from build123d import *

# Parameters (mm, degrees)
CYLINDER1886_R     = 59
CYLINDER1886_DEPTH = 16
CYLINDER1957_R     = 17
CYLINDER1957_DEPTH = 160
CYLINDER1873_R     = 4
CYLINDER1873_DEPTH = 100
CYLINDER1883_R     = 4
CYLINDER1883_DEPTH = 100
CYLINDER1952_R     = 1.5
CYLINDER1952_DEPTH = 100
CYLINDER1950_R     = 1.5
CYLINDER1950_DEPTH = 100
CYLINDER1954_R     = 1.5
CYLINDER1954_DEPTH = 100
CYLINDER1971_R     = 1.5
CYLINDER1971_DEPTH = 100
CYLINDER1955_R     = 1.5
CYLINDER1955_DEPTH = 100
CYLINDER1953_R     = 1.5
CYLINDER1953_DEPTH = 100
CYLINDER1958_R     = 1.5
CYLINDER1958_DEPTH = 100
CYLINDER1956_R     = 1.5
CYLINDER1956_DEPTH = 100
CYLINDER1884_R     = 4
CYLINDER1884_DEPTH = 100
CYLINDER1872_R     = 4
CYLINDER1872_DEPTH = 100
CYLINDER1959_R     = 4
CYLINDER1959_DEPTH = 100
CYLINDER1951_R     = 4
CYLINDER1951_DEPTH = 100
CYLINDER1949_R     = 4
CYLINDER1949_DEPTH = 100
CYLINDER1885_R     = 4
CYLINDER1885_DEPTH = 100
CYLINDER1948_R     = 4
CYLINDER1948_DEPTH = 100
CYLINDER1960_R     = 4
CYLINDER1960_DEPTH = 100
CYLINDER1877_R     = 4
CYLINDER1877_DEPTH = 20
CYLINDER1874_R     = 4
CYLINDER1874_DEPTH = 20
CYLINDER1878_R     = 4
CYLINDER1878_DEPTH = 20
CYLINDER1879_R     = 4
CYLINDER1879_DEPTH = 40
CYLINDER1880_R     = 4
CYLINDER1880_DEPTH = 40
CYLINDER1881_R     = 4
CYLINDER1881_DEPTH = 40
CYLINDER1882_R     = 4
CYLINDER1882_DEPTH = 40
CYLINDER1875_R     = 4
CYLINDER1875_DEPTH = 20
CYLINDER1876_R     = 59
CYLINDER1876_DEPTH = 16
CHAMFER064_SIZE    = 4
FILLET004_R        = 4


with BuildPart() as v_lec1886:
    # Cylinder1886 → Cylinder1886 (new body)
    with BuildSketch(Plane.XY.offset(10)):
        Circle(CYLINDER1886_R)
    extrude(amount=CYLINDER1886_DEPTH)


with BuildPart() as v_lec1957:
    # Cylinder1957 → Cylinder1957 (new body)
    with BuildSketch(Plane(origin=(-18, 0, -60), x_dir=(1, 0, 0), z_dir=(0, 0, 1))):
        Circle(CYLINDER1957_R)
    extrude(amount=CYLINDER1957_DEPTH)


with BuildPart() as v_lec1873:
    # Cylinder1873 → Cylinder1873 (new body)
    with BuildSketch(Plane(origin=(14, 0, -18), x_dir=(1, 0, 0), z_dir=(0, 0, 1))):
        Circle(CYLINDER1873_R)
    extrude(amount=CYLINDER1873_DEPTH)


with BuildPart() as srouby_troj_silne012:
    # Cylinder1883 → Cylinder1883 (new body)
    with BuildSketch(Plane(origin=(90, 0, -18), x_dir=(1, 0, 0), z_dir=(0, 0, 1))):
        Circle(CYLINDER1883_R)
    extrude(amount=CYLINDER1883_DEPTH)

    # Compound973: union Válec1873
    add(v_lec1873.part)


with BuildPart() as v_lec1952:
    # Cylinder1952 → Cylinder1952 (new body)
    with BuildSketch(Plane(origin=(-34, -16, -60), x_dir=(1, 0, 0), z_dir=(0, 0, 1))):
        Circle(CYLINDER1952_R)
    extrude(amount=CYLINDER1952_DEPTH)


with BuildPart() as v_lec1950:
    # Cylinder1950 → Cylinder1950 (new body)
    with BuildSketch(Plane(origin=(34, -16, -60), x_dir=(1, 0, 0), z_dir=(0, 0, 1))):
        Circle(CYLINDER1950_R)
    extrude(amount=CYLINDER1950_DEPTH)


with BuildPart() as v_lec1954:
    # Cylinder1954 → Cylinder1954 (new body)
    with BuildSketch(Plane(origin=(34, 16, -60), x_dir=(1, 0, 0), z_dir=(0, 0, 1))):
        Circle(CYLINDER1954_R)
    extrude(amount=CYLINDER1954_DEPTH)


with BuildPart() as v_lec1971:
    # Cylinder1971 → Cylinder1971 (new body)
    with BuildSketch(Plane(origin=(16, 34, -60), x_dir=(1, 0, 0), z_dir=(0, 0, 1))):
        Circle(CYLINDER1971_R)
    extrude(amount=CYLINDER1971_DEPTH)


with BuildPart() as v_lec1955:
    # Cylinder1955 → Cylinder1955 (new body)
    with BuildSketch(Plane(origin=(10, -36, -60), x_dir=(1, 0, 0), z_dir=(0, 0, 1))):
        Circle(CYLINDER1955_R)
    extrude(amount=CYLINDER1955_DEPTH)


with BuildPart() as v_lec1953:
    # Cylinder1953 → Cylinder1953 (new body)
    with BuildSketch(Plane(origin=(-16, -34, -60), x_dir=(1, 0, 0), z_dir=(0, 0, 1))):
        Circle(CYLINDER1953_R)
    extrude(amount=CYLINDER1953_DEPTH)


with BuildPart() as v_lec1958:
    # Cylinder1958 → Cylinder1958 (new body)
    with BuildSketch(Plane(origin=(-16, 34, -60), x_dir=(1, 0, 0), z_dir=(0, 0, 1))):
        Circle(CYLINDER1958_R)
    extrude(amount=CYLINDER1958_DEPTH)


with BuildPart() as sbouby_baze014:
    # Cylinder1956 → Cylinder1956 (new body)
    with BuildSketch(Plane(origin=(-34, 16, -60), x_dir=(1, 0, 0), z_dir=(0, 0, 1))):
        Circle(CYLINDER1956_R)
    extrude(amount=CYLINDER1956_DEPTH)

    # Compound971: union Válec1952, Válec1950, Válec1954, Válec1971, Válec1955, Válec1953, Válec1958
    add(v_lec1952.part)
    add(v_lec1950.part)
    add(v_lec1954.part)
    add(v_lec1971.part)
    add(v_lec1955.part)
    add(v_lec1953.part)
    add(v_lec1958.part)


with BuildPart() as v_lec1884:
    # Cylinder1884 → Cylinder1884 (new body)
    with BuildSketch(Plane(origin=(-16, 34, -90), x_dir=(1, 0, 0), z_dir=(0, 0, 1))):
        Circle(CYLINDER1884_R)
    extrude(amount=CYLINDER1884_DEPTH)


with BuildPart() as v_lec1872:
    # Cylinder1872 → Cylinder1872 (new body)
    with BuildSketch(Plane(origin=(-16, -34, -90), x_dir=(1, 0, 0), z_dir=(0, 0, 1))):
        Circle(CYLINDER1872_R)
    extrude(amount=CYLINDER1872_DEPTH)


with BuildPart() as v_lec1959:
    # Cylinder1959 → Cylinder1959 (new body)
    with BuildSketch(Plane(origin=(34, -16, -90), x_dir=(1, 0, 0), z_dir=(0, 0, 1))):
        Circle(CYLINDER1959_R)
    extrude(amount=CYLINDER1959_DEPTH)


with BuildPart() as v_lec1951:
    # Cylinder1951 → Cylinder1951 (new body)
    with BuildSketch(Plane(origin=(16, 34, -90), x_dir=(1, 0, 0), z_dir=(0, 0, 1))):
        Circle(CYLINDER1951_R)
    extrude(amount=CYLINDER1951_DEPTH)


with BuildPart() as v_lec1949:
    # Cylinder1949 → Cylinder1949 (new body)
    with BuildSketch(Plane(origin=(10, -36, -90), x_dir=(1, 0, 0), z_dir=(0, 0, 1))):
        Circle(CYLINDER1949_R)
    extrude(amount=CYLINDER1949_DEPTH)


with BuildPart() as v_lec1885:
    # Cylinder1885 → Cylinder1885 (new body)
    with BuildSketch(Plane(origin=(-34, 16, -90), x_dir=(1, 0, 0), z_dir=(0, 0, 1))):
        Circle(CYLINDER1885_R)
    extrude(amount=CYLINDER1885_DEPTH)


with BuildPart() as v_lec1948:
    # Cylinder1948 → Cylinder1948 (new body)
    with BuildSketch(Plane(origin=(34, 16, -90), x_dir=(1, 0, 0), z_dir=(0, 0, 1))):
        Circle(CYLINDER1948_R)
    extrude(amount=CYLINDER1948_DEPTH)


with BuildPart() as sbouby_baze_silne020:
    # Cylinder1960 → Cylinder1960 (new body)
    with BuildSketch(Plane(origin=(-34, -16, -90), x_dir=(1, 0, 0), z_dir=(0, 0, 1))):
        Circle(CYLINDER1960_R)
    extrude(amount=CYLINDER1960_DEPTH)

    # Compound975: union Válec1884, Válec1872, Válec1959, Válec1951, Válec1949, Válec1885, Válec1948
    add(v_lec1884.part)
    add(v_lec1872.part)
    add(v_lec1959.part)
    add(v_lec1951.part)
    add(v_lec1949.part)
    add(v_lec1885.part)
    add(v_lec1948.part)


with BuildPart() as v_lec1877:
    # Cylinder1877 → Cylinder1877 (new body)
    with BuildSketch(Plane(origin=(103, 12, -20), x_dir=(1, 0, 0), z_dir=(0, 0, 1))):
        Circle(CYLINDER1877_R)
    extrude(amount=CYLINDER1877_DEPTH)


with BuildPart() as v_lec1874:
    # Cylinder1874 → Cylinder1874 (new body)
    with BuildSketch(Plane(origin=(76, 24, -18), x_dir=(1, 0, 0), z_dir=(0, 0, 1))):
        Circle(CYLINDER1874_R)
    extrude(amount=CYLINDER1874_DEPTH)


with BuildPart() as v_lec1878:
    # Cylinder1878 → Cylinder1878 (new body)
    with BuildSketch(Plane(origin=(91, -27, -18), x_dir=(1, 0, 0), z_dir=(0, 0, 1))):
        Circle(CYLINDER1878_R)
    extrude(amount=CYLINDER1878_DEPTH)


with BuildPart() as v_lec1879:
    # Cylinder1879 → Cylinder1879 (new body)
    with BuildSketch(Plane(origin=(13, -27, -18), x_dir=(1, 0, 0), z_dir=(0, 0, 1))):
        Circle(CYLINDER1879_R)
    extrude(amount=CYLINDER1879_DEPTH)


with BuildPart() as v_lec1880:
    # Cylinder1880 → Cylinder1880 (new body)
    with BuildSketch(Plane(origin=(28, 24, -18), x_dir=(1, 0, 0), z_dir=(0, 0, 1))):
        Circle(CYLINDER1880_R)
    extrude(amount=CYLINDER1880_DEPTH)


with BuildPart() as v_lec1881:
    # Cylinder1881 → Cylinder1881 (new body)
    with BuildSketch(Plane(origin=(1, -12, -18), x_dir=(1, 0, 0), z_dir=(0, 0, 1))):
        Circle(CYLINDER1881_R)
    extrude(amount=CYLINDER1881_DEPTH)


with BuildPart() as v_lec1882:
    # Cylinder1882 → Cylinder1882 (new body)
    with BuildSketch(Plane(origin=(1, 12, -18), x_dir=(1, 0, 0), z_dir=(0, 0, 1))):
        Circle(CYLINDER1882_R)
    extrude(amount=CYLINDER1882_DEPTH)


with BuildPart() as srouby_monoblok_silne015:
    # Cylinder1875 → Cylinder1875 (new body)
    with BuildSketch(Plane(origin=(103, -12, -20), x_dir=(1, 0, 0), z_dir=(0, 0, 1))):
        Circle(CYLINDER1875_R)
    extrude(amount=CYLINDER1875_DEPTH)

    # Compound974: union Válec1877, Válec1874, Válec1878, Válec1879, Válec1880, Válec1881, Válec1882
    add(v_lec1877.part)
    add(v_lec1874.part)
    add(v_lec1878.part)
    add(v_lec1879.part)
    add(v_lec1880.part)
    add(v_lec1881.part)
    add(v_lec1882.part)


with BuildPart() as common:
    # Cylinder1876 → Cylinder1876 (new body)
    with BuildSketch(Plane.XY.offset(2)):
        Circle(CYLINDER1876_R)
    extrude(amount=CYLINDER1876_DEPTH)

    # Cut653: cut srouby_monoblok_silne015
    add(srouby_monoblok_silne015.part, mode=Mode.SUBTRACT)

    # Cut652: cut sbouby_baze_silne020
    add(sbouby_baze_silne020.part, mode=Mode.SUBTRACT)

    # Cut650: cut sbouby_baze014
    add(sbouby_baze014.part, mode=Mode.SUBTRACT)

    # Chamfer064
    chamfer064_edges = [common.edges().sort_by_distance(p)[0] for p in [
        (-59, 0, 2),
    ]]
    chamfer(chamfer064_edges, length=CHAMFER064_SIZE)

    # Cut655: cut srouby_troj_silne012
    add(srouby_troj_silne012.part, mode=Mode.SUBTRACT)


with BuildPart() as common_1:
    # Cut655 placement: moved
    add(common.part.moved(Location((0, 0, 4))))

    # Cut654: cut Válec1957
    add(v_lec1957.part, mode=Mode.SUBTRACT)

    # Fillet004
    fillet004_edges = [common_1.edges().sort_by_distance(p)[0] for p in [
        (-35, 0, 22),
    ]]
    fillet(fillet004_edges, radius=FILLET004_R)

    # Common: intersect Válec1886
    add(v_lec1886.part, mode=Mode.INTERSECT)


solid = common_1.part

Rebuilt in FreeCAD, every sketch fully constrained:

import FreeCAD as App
import Part
import Sketcher
Q = App.Units.Quantity


def edges_at(feature, points):
    """Names of the edges that pass closest to the given points."""
    edges = feature.Shape.Edges
    near = lambda p: min(range(len(edges)), key=lambda i: edges[i].distToShape(Part.Vertex(*p))[0])
    return sorted({f"Edge{near(p) + 1}" for p in points})

doc = App.newDocument("Part")
body = doc.addObject("PartDesign::Body", "Body")

sketch1 = body.newObject("Sketcher::SketchObject", "Sketch")
sketch1.AttachmentSupport = (doc.getObject("XY_Plane"), [""])
sketch1.MapMode = "FlatFace"
sketch1.AttachmentOffset = App.Placement(App.Vector(0, 0, 10), App.Rotation())
sketch1.addGeometry(Part.Circle(App.Vector(0, 0, 0), App.Vector(0, 0, 1), 59), False)
sketch1.addConstraint([
    Sketcher.Constraint("Coincident", 0, 3, -1, 1),
    Sketcher.Constraint("Diameter", 0, Q("118 mm")),
])
pad1 = body.newObject("PartDesign::Pad", "Pad")
pad1.Profile = sketch1
pad1.Length = 16
body2 = doc.addObject("PartDesign::Body", "Body001")

sketch2 = body2.newObject("Sketcher::SketchObject", "Sketch001")
sketch2.AttachmentSupport = (doc.getObject("XY_Plane001"), [""])
sketch2.MapMode = "FlatFace"
sketch2.AttachmentOffset = App.Placement(App.Vector(0, 0, -60), App.Rotation())
sketch2.addGeometry(Part.Circle(App.Vector(-18, 0, 0), App.Vector(0, 0, 1), 17), False)
sketch2.addConstraint([
    Sketcher.Constraint("PointOnObject", 0, 3, -1),
    Sketcher.Constraint("Diameter", 0, Q("34 mm")),
    Sketcher.Constraint("DistanceX", 0, 3, -1, 1, Q("18 mm")),
])
pad2 = body2.newObject("PartDesign::Pad", "Pad001")
pad2.Profile = sketch2
pad2.Length = 160
body3 = doc.addObject("PartDesign::Body", "Body002")

sketch3 = body3.newObject("Sketcher::SketchObject", "Sketch002")
sketch3.AttachmentSupport = (doc.getObject("XY_Plane002"), [""])
sketch3.MapMode = "FlatFace"
sketch3.AttachmentOffset = App.Placement(App.Vector(0, 0, -18), App.Rotation())
sketch3.addGeometry(Part.Circle(App.Vector(14, 0, 0), App.Vector(0, 0, 1), 4), False)
sketch3.addConstraint([
    Sketcher.Constraint("PointOnObject", 0, 3, -1),
    Sketcher.Constraint("Diameter", 0, Q("8 mm")),
    Sketcher.Constraint("DistanceX", -1, 1, 0, 3, Q("14 mm")),
])
pad3 = body3.newObject("PartDesign::Pad", "Pad002")
pad3.Profile = sketch3
pad3.Length = 100
body4 = doc.addObject("PartDesign::Body", "Body003")
body4.AllowCompound = True

sketch4 = body4.newObject("Sketcher::SketchObject", "Sketch003")
sketch4.AttachmentSupport = (doc.getObject("XY_Plane003"), [""])
sketch4.MapMode = "FlatFace"
sketch4.AttachmentOffset = App.Placement(App.Vector(0, 0, -18), App.Rotation())
sketch4.addGeometry(Part.Circle(App.Vector(90, 0, 0), App.Vector(0, 0, 1), 4), False)
sketch4.addConstraint([
    Sketcher.Constraint("PointOnObject", 0, 3, -1),
    Sketcher.Constraint("Diameter", 0, Q("8 mm")),
    Sketcher.Constraint("DistanceX", -1, 1, 0, 3, Q("90 mm")),
])
pad4 = body4.newObject("PartDesign::Pad", "Pad003")
pad4.Profile = sketch4
pad4.Length = 100
doc.recompute()

boolean = body4.newObject("PartDesign::Boolean", "Boolean")
boolean.Type = "Fuse"
boolean.addObjects([body3])
body5 = doc.addObject("PartDesign::Body", "Body004")

sketch5 = body5.newObject("Sketcher::SketchObject", "Sketch004")
sketch5.AttachmentSupport = (doc.getObject("XY_Plane004"), [""])
sketch5.MapMode = "FlatFace"
sketch5.AttachmentOffset = App.Placement(App.Vector(0, 0, -60), App.Rotation())
sketch5.addGeometry(Part.Circle(App.Vector(-34, -16, 0), App.Vector(0, 0, 1), 1.5), False)
sketch5.addConstraint([
    Sketcher.Constraint("Diameter", 0, Q("3 mm")),
    Sketcher.Constraint("DistanceX", 0, 3, -1, 1, Q("34 mm")),
    Sketcher.Constraint("DistanceY", 0, 3, -1, 1, Q("16 mm")),
])
pad5 = body5.newObject("PartDesign::Pad", "Pad004")
pad5.Profile = sketch5
pad5.Length = 100
body6 = doc.addObject("PartDesign::Body", "Body005")

sketch6 = body6.newObject("Sketcher::SketchObject", "Sketch005")
sketch6.AttachmentSupport = (doc.getObject("XY_Plane005"), [""])
sketch6.MapMode = "FlatFace"
sketch6.AttachmentOffset = App.Placement(App.Vector(0, 0, -60), App.Rotation())
sketch6.addGeometry(Part.Circle(App.Vector(34, -16, 0), App.Vector(0, 0, 1), 1.5), False)
sketch6.addConstraint([
    Sketcher.Constraint("Diameter", 0, Q("3 mm")),
    Sketcher.Constraint("DistanceX", -1, 1, 0, 3, Q("34 mm")),
    Sketcher.Constraint("DistanceY", 0, 3, -1, 1, Q("16 mm")),
])
pad6 = body6.newObject("PartDesign::Pad", "Pad005")
pad6.Profile = sketch6
pad6.Length = 100
body7 = doc.addObject("PartDesign::Body", "Body006")

sketch7 = body7.newObject("Sketcher::SketchObject", "Sketch006")
sketch7.AttachmentSupport = (doc.getObject("XY_Plane006"), [""])
sketch7.MapMode = "FlatFace"
sketch7.AttachmentOffset = App.Placement(App.Vector(0, 0, -60), App.Rotation())
sketch7.addGeometry(Part.Circle(App.Vector(34, 16, 0), App.Vector(0, 0, 1), 1.5), False)
sketch7.addConstraint([
    Sketcher.Constraint("Diameter", 0, Q("3 mm")),
    Sketcher.Constraint("DistanceX", -1, 1, 0, 3, Q("34 mm")),
    Sketcher.Constraint("DistanceY", -1, 1, 0, 3, Q("16 mm")),
])
pad7 = body7.newObject("PartDesign::Pad", "Pad006")
pad7.Profile = sketch7
pad7.Length = 100
body8 = doc.addObject("PartDesign::Body", "Body007")

sketch8 = body8.newObject("Sketcher::SketchObject", "Sketch007")
sketch8.AttachmentSupport = (doc.getObject("XY_Plane007"), [""])
sketch8.MapMode = "FlatFace"
sketch8.AttachmentOffset = App.Placement(App.Vector(0, 0, -60), App.Rotation())
sketch8.addGeometry(Part.Circle(App.Vector(16, 34, 0), App.Vector(0, 0, 1), 1.5), False)
sketch8.addConstraint([
    Sketcher.Constraint("Diameter", 0, Q("3 mm")),
    Sketcher.Constraint("DistanceX", -1, 1, 0, 3, Q("16 mm")),
    Sketcher.Constraint("DistanceY", -1, 1, 0, 3, Q("34 mm")),
])
pad8 = body8.newObject("PartDesign::Pad", "Pad007")
pad8.Profile = sketch8
pad8.Length = 100
body9 = doc.addObject("PartDesign::Body", "Body008")

sketch9 = body9.newObject("Sketcher::SketchObject", "Sketch008")
sketch9.AttachmentSupport = (doc.getObject("XY_Plane008"), [""])
sketch9.MapMode = "FlatFace"
sketch9.AttachmentOffset = App.Placement(App.Vector(0, 0, -60), App.Rotation())
sketch9.addGeometry(Part.Circle(App.Vector(10, -36, 0), App.Vector(0, 0, 1), 1.5), False)
sketch9.addConstraint([
    Sketcher.Constraint("Diameter", 0, Q("3 mm")),
    Sketcher.Constraint("DistanceX", -1, 1, 0, 3, Q("10 mm")),
    Sketcher.Constraint("DistanceY", 0, 3, -1, 1, Q("36 mm")),
])
pad9 = body9.newObject("PartDesign::Pad", "Pad008")
pad9.Profile = sketch9
pad9.Length = 100
body10 = doc.addObject("PartDesign::Body", "Body009")

sketch10 = body10.newObject("Sketcher::SketchObject", "Sketch009")
sketch10.AttachmentSupport = (doc.getObject("XY_Plane009"), [""])
sketch10.MapMode = "FlatFace"
sketch10.AttachmentOffset = App.Placement(App.Vector(0, 0, -60), App.Rotation())
sketch10.addGeometry(Part.Circle(App.Vector(-16, -34, 0), App.Vector(0, 0, 1), 1.5), False)
sketch10.addConstraint([
    Sketcher.Constraint("Diameter", 0, Q("3 mm")),
    Sketcher.Constraint("DistanceX", 0, 3, -1, 1, Q("16 mm")),
    Sketcher.Constraint("DistanceY", 0, 3, -1, 1, Q("34 mm")),
])
pad10 = body10.newObject("PartDesign::Pad", "Pad009")
pad10.Profile = sketch10
pad10.Length = 100
body11 = doc.addObject("PartDesign::Body", "Body010")

sketch11 = body11.newObject("Sketcher::SketchObject", "Sketch010")
sketch11.AttachmentSupport = (doc.getObject("XY_Plane010"), [""])
sketch11.MapMode = "FlatFace"
sketch11.AttachmentOffset = App.Placement(App.Vector(0, 0, -60), App.Rotation())
sketch11.addGeometry(Part.Circle(App.Vector(-16, 34, 0), App.Vector(0, 0, 1), 1.5), False)
sketch11.addConstraint([
    Sketcher.Constraint("Diameter", 0, Q("3 mm")),
    Sketcher.Constraint("DistanceX", 0, 3, -1, 1, Q("16 mm")),
    Sketcher.Constraint("DistanceY", -1, 1, 0, 3, Q("34 mm")),
])
pad11 = body11.newObject("PartDesign::Pad", "Pad010")
pad11.Profile = sketch11
pad11.Length = 100
body12 = doc.addObject("PartDesign::Body", "Body011")
body12.AllowCompound = True

sketch12 = body12.newObject("Sketcher::SketchObject", "Sketch011")
sketch12.AttachmentSupport = (doc.getObject("XY_Plane011"), [""])
sketch12.MapMode = "FlatFace"
sketch12.AttachmentOffset = App.Placement(App.Vector(0, 0, -60), App.Rotation())
sketch12.addGeometry(Part.Circle(App.Vector(-34, 16, 0), App.Vector(0, 0, 1), 1.5), False)
sketch12.addConstraint([
    Sketcher.Constraint("Diameter", 0, Q("3 mm")),
    Sketcher.Constraint("DistanceX", 0, 3, -1, 1, Q("34 mm")),
    Sketcher.Constraint("DistanceY", -1, 1, 0, 3, Q("16 mm")),
])
pad12 = body12.newObject("PartDesign::Pad", "Pad011")
pad12.Profile = sketch12
pad12.Length = 100
doc.recompute()

boolean2 = body12.newObject("PartDesign::Boolean", "Boolean001")
boolean2.Type = "Fuse"
boolean2.addObjects([body5])
doc.recompute()

boolean3 = body12.newObject("PartDesign::Boolean", "Boolean002")
boolean3.Type = "Fuse"
boolean3.addObjects([body6])
doc.recompute()

boolean4 = body12.newObject("PartDesign::Boolean", "Boolean003")
boolean4.Type = "Fuse"
boolean4.addObjects([body7])
doc.recompute()

boolean5 = body12.newObject("PartDesign::Boolean", "Boolean004")
boolean5.Type = "Fuse"
boolean5.addObjects([body8])
doc.recompute()

boolean6 = body12.newObject("PartDesign::Boolean", "Boolean005")
boolean6.Type = "Fuse"
boolean6.addObjects([body9])
doc.recompute()

boolean7 = body12.newObject("PartDesign::Boolean", "Boolean006")
boolean7.Type = "Fuse"
boolean7.addObjects([body10])
doc.recompute()

boolean8 = body12.newObject("PartDesign::Boolean", "Boolean007")
boolean8.Type = "Fuse"
boolean8.addObjects([body11])
body13 = doc.addObject("PartDesign::Body", "Body012")

sketch13 = body13.newObject("Sketcher::SketchObject", "Sketch012")
sketch13.AttachmentSupport = (doc.getObject("XY_Plane012"), [""])
sketch13.MapMode = "FlatFace"
sketch13.AttachmentOffset = App.Placement(App.Vector(0, 0, -90), App.Rotation())
sketch13.addGeometry(Part.Circle(App.Vector(-16, 34, 0), App.Vector(0, 0, 1), 4), False)
sketch13.addConstraint([
    Sketcher.Constraint("Diameter", 0, Q("8 mm")),
    Sketcher.Constraint("DistanceX", 0, 3, -1, 1, Q("16 mm")),
    Sketcher.Constraint("DistanceY", -1, 1, 0, 3, Q("34 mm")),
])
pad13 = body13.newObject("PartDesign::Pad", "Pad012")
pad13.Profile = sketch13
pad13.Length = 100
body14 = doc.addObject("PartDesign::Body", "Body013")

sketch14 = body14.newObject("Sketcher::SketchObject", "Sketch013")
sketch14.AttachmentSupport = (doc.getObject("XY_Plane013"), [""])
sketch14.MapMode = "FlatFace"
sketch14.AttachmentOffset = App.Placement(App.Vector(0, 0, -90), App.Rotation())
sketch14.addGeometry(Part.Circle(App.Vector(-16, -34, 0), App.Vector(0, 0, 1), 4), False)
sketch14.addConstraint([
    Sketcher.Constraint("Diameter", 0, Q("8 mm")),
    Sketcher.Constraint("DistanceX", 0, 3, -1, 1, Q("16 mm")),
    Sketcher.Constraint("DistanceY", 0, 3, -1, 1, Q("34 mm")),
])
pad14 = body14.newObject("PartDesign::Pad", "Pad013")
pad14.Profile = sketch14
pad14.Length = 100
body15 = doc.addObject("PartDesign::Body", "Body014")

sketch15 = body15.newObject("Sketcher::SketchObject", "Sketch014")
sketch15.AttachmentSupport = (doc.getObject("XY_Plane014"), [""])
sketch15.MapMode = "FlatFace"
sketch15.AttachmentOffset = App.Placement(App.Vector(0, 0, -90), App.Rotation())
sketch15.addGeometry(Part.Circle(App.Vector(34, -16, 0), App.Vector(0, 0, 1), 4), False)
sketch15.addConstraint([
    Sketcher.Constraint("Diameter", 0, Q("8 mm")),
    Sketcher.Constraint("DistanceX", -1, 1, 0, 3, Q("34 mm")),
    Sketcher.Constraint("DistanceY", 0, 3, -1, 1, Q("16 mm")),
])
pad15 = body15.newObject("PartDesign::Pad", "Pad014")
pad15.Profile = sketch15
pad15.Length = 100
body16 = doc.addObject("PartDesign::Body", "Body015")

sketch16 = body16.newObject("Sketcher::SketchObject", "Sketch015")
sketch16.AttachmentSupport = (doc.getObject("XY_Plane015"), [""])
sketch16.MapMode = "FlatFace"
sketch16.AttachmentOffset = App.Placement(App.Vector(0, 0, -90), App.Rotation())
sketch16.addGeometry(Part.Circle(App.Vector(16, 34, 0), App.Vector(0, 0, 1), 4), False)
sketch16.addConstraint([
    Sketcher.Constraint("Diameter", 0, Q("8 mm")),
    Sketcher.Constraint("DistanceX", -1, 1, 0, 3, Q("16 mm")),
    Sketcher.Constraint("DistanceY", -1, 1, 0, 3, Q("34 mm")),
])
pad16 = body16.newObject("PartDesign::Pad", "Pad015")
pad16.Profile = sketch16
pad16.Length = 100
body17 = doc.addObject("PartDesign::Body", "Body016")

sketch17 = body17.newObject("Sketcher::SketchObject", "Sketch016")
sketch17.AttachmentSupport = (doc.getObject("XY_Plane016"), [""])
sketch17.MapMode = "FlatFace"
sketch17.AttachmentOffset = App.Placement(App.Vector(0, 0, -90), App.Rotation())
sketch17.addGeometry(Part.Circle(App.Vector(10, -36, 0), App.Vector(0, 0, 1), 4), False)
sketch17.addConstraint([
    Sketcher.Constraint("Diameter", 0, Q("8 mm")),
    Sketcher.Constraint("DistanceX", -1, 1, 0, 3, Q("10 mm")),
    Sketcher.Constraint("DistanceY", 0, 3, -1, 1, Q("36 mm")),
])
pad17 = body17.newObject("PartDesign::Pad", "Pad016")
pad17.Profile = sketch17
pad17.Length = 100
body18 = doc.addObject("PartDesign::Body", "Body017")

sketch18 = body18.newObject("Sketcher::SketchObject", "Sketch017")
sketch18.AttachmentSupport = (doc.getObject("XY_Plane017"), [""])
sketch18.MapMode = "FlatFace"
sketch18.AttachmentOffset = App.Placement(App.Vector(0, 0, -90), App.Rotation())
sketch18.addGeometry(Part.Circle(App.Vector(-34, 16, 0), App.Vector(0, 0, 1), 4), False)
sketch18.addConstraint([
    Sketcher.Constraint("Diameter", 0, Q("8 mm")),
    Sketcher.Constraint("DistanceX", 0, 3, -1, 1, Q("34 mm")),
    Sketcher.Constraint("DistanceY", -1, 1, 0, 3, Q("16 mm")),
])
pad18 = body18.newObject("PartDesign::Pad", "Pad017")
pad18.Profile = sketch18
pad18.Length = 100
body19 = doc.addObject("PartDesign::Body", "Body018")

sketch19 = body19.newObject("Sketcher::SketchObject", "Sketch018")
sketch19.AttachmentSupport = (doc.getObject("XY_Plane018"), [""])
sketch19.MapMode = "FlatFace"
sketch19.AttachmentOffset = App.Placement(App.Vector(0, 0, -90), App.Rotation())
sketch19.addGeometry(Part.Circle(App.Vector(34, 16, 0), App.Vector(0, 0, 1), 4), False)
sketch19.addConstraint([
    Sketcher.Constraint("Diameter", 0, Q("8 mm")),
    Sketcher.Constraint("DistanceX", -1, 1, 0, 3, Q("34 mm")),
    Sketcher.Constraint("DistanceY", -1, 1, 0, 3, Q("16 mm")),
])
pad19 = body19.newObject("PartDesign::Pad", "Pad018")
pad19.Profile = sketch19
pad19.Length = 100
body20 = doc.addObject("PartDesign::Body", "Body019")
body20.AllowCompound = True

sketch20 = body20.newObject("Sketcher::SketchObject", "Sketch019")
sketch20.AttachmentSupport = (doc.getObject("XY_Plane019"), [""])
sketch20.MapMode = "FlatFace"
sketch20.AttachmentOffset = App.Placement(App.Vector(0, 0, -90), App.Rotation())
sketch20.addGeometry(Part.Circle(App.Vector(-34, -16, 0), App.Vector(0, 0, 1), 4), False)
sketch20.addConstraint([
    Sketcher.Constraint("Diameter", 0, Q("8 mm")),
    Sketcher.Constraint("DistanceX", 0, 3, -1, 1, Q("34 mm")),
    Sketcher.Constraint("DistanceY", 0, 3, -1, 1, Q("16 mm")),
])
pad20 = body20.newObject("PartDesign::Pad", "Pad019")
pad20.Profile = sketch20
pad20.Length = 100
doc.recompute()

boolean9 = body20.newObject("PartDesign::Boolean", "Boolean008")
boolean9.Type = "Fuse"
boolean9.addObjects([body13])
doc.recompute()

boolean10 = body20.newObject("PartDesign::Boolean", "Boolean009")
boolean10.Type = "Fuse"
boolean10.addObjects([body14])
doc.recompute()

boolean11 = body20.newObject("PartDesign::Boolean", "Boolean010")
boolean11.Type = "Fuse"
boolean11.addObjects([body15])
doc.recompute()

boolean12 = body20.newObject("PartDesign::Boolean", "Boolean011")
boolean12.Type = "Fuse"
boolean12.addObjects([body16])
doc.recompute()

boolean13 = body20.newObject("PartDesign::Boolean", "Boolean012")
boolean13.Type = "Fuse"
boolean13.addObjects([body17])
doc.recompute()

boolean14 = body20.newObject("PartDesign::Boolean", "Boolean013")
boolean14.Type = "Fuse"
boolean14.addObjects([body18])
doc.recompute()

boolean15 = body20.newObject("PartDesign::Boolean", "Boolean014")
boolean15.Type = "Fuse"
boolean15.addObjects([body19])
body21 = doc.addObject("PartDesign::Body", "Body020")

sketch21 = body21.newObject("Sketcher::SketchObject", "Sketch020")
sketch21.AttachmentSupport = (doc.getObject("XY_Plane020"), [""])
sketch21.MapMode = "FlatFace"
sketch21.AttachmentOffset = App.Placement(App.Vector(0, 0, -20), App.Rotation())
sketch21.addGeometry(Part.Circle(App.Vector(103, 12, 0), App.Vector(0, 0, 1), 4), False)
sketch21.addConstraint([
    Sketcher.Constraint("Diameter", 0, Q("8 mm")),
    Sketcher.Constraint("DistanceX", -1, 1, 0, 3, Q("103 mm")),
    Sketcher.Constraint("DistanceY", -1, 1, 0, 3, Q("12 mm")),
])
pad21 = body21.newObject("PartDesign::Pad", "Pad020")
pad21.Profile = sketch21
pad21.Length = 20
body22 = doc.addObject("PartDesign::Body", "Body021")

sketch22 = body22.newObject("Sketcher::SketchObject", "Sketch021")
sketch22.AttachmentSupport = (doc.getObject("XY_Plane021"), [""])
sketch22.MapMode = "FlatFace"
sketch22.AttachmentOffset = App.Placement(App.Vector(0, 0, -18), App.Rotation())
sketch22.addGeometry(Part.Circle(App.Vector(76, 24, 0), App.Vector(0, 0, 1), 4), False)
sketch22.addConstraint([
    Sketcher.Constraint("Diameter", 0, Q("8 mm")),
    Sketcher.Constraint("DistanceX", -1, 1, 0, 3, Q("76 mm")),
    Sketcher.Constraint("DistanceY", -1, 1, 0, 3, Q("24 mm")),
])
pad22 = body22.newObject("PartDesign::Pad", "Pad021")
pad22.Profile = sketch22
pad22.Length = 20
body23 = doc.addObject("PartDesign::Body", "Body022")

sketch23 = body23.newObject("Sketcher::SketchObject", "Sketch022")
sketch23.AttachmentSupport = (doc.getObject("XY_Plane022"), [""])
sketch23.MapMode = "FlatFace"
sketch23.AttachmentOffset = App.Placement(App.Vector(0, 0, -18), App.Rotation())
sketch23.addGeometry(Part.Circle(App.Vector(91, -27, 0), App.Vector(0, 0, 1), 4), False)
sketch23.addConstraint([
    Sketcher.Constraint("Diameter", 0, Q("8 mm")),
    Sketcher.Constraint("DistanceX", -1, 1, 0, 3, Q("91 mm")),
    Sketcher.Constraint("DistanceY", 0, 3, -1, 1, Q("27 mm")),
])
pad23 = body23.newObject("PartDesign::Pad", "Pad022")
pad23.Profile = sketch23
pad23.Length = 20
body24 = doc.addObject("PartDesign::Body", "Body023")

sketch24 = body24.newObject("Sketcher::SketchObject", "Sketch023")
sketch24.AttachmentSupport = (doc.getObject("XY_Plane023"), [""])
sketch24.MapMode = "FlatFace"
sketch24.AttachmentOffset = App.Placement(App.Vector(0, 0, -18), App.Rotation())
sketch24.addGeometry(Part.Circle(App.Vector(13, -27, 0), App.Vector(0, 0, 1), 4), False)
sketch24.addConstraint([
    Sketcher.Constraint("Diameter", 0, Q("8 mm")),
    Sketcher.Constraint("DistanceX", -1, 1, 0, 3, Q("13 mm")),
    Sketcher.Constraint("DistanceY", 0, 3, -1, 1, Q("27 mm")),
])
pad24 = body24.newObject("PartDesign::Pad", "Pad023")
pad24.Profile = sketch24
pad24.Length = 40
body25 = doc.addObject("PartDesign::Body", "Body024")

sketch25 = body25.newObject("Sketcher::SketchObject", "Sketch024")
sketch25.AttachmentSupport = (doc.getObject("XY_Plane024"), [""])
sketch25.MapMode = "FlatFace"
sketch25.AttachmentOffset = App.Placement(App.Vector(0, 0, -18), App.Rotation())
sketch25.addGeometry(Part.Circle(App.Vector(28, 24, 0), App.Vector(0, 0, 1), 4), False)
sketch25.addConstraint([
    Sketcher.Constraint("Diameter", 0, Q("8 mm")),
    Sketcher.Constraint("DistanceX", -1, 1, 0, 3, Q("28 mm")),
    Sketcher.Constraint("DistanceY", -1, 1, 0, 3, Q("24 mm")),
])
pad25 = body25.newObject("PartDesign::Pad", "Pad024")
pad25.Profile = sketch25
pad25.Length = 40
body26 = doc.addObject("PartDesign::Body", "Body025")

sketch26 = body26.newObject("Sketcher::SketchObject", "Sketch025")
sketch26.AttachmentSupport = (doc.getObject("XY_Plane025"), [""])
sketch26.MapMode = "FlatFace"
sketch26.AttachmentOffset = App.Placement(App.Vector(0, 0, -18), App.Rotation())
sketch26.addGeometry(Part.Circle(App.Vector(1, -12, 0), App.Vector(0, 0, 1), 4), False)
sketch26.addConstraint([
    Sketcher.Constraint("Diameter", 0, Q("8 mm")),
    Sketcher.Constraint("DistanceX", -1, 1, 0, 3, Q("1 mm")),
    Sketcher.Constraint("DistanceY", 0, 3, -1, 1, Q("12 mm")),
])
pad26 = body26.newObject("PartDesign::Pad", "Pad025")
pad26.Profile = sketch26
pad26.Length = 40
body27 = doc.addObject("PartDesign::Body", "Body026")

sketch27 = body27.newObject("Sketcher::SketchObject", "Sketch026")
sketch27.AttachmentSupport = (doc.getObject("XY_Plane026"), [""])
sketch27.MapMode = "FlatFace"
sketch27.AttachmentOffset = App.Placement(App.Vector(0, 0, -18), App.Rotation())
sketch27.addGeometry(Part.Circle(App.Vector(1, 12, 0), App.Vector(0, 0, 1), 4), False)
sketch27.addConstraint([
    Sketcher.Constraint("Diameter", 0, Q("8 mm")),
    Sketcher.Constraint("DistanceX", -1, 1, 0, 3, Q("1 mm")),
    Sketcher.Constraint("DistanceY", -1, 1, 0, 3, Q("12 mm")),
])
pad27 = body27.newObject("PartDesign::Pad", "Pad026")
pad27.Profile = sketch27
pad27.Length = 40
body28 = doc.addObject("PartDesign::Body", "Body027")
body28.AllowCompound = True

sketch28 = body28.newObject("Sketcher::SketchObject", "Sketch027")
sketch28.AttachmentSupport = (doc.getObject("XY_Plane027"), [""])
sketch28.MapMode = "FlatFace"
sketch28.AttachmentOffset = App.Placement(App.Vector(0, 0, -20), App.Rotation())
sketch28.addGeometry(Part.Circle(App.Vector(103, -12, 0), App.Vector(0, 0, 1), 4), False)
sketch28.addConstraint([
    Sketcher.Constraint("Diameter", 0, Q("8 mm")),
    Sketcher.Constraint("DistanceX", -1, 1, 0, 3, Q("103 mm")),
    Sketcher.Constraint("DistanceY", 0, 3, -1, 1, Q("12 mm")),
])
pad28 = body28.newObject("PartDesign::Pad", "Pad027")
pad28.Profile = sketch28
pad28.Length = 20
doc.recompute()

boolean16 = body28.newObject("PartDesign::Boolean", "Boolean015")
boolean16.Type = "Fuse"
boolean16.addObjects([body21])
doc.recompute()

boolean17 = body28.newObject("PartDesign::Boolean", "Boolean016")
boolean17.Type = "Fuse"
boolean17.addObjects([body22])
doc.recompute()

boolean18 = body28.newObject("PartDesign::Boolean", "Boolean017")
boolean18.Type = "Fuse"
boolean18.addObjects([body23])
doc.recompute()

boolean19 = body28.newObject("PartDesign::Boolean", "Boolean018")
boolean19.Type = "Fuse"
boolean19.addObjects([body24])
doc.recompute()

boolean20 = body28.newObject("PartDesign::Boolean", "Boolean019")
boolean20.Type = "Fuse"
boolean20.addObjects([body25])
doc.recompute()

boolean21 = body28.newObject("PartDesign::Boolean", "Boolean020")
boolean21.Type = "Fuse"
boolean21.addObjects([body26])
doc.recompute()

boolean22 = body28.newObject("PartDesign::Boolean", "Boolean021")
boolean22.Type = "Fuse"
boolean22.addObjects([body27])
body29 = doc.addObject("PartDesign::Body", "Body028")

sketch29 = body29.newObject("Sketcher::SketchObject", "Sketch028")
sketch29.AttachmentSupport = (doc.getObject("XY_Plane028"), [""])
sketch29.MapMode = "FlatFace"
sketch29.AttachmentOffset = App.Placement(App.Vector(0, 0, 2), App.Rotation())
sketch29.addGeometry(Part.Circle(App.Vector(0, 0, 0), App.Vector(0, 0, 1), 59), False)
sketch29.addConstraint([
    Sketcher.Constraint("Coincident", 0, 3, -1, 1),
    Sketcher.Constraint("Diameter", 0, Q("118 mm")),
])
pad29 = body29.newObject("PartDesign::Pad", "Pad028")
pad29.Profile = sketch29
pad29.Length = 16
doc.recompute()

boolean23 = body29.newObject("PartDesign::Boolean", "Boolean022")
boolean23.Type = "Cut"
boolean23.addObjects([body28])
doc.recompute()

boolean24 = body29.newObject("PartDesign::Boolean", "Boolean023")
boolean24.Type = "Cut"
boolean24.addObjects([body20])
doc.recompute()

boolean25 = body29.newObject("PartDesign::Boolean", "Boolean024")
boolean25.Type = "Cut"
boolean25.addObjects([body12])
doc.recompute()

chamfer = body29.newObject("PartDesign::Chamfer", "Chamfer")
chamfer.Base = (boolean25, edges_at(boolean25, [(-59, 0, 2)]))
chamfer.Size = 4
doc.recompute()

boolean26 = body29.newObject("PartDesign::Boolean", "Boolean025")
boolean26.Type = "Cut"
boolean26.addObjects([body4])
body30 = doc.addObject("PartDesign::Body", "Body029")
doc.recompute()

body29.Placement = App.Placement(App.Vector(0, 0, 4), App.Rotation(App.Vector(0, 0, 1), 0))
boolean27 = body30.newObject("PartDesign::Boolean", "Boolean026")
boolean27.Type = "Fuse"
boolean27.addObjects([body29])
doc.recompute()

boolean28 = body30.newObject("PartDesign::Boolean", "Boolean027")
boolean28.Type = "Cut"
boolean28.addObjects([body2])
doc.recompute()

fillet = body30.newObject("PartDesign::Fillet", "Fillet")
fillet.Base = (boolean28, edges_at(boolean28, [(-35, 0, 22)]))
fillet.Radius = 4
doc.recompute()

boolean29 = body30.newObject("PartDesign::Boolean", "Boolean028")
boolean29.Type = "Common"
boolean29.addObjects([body])

doc.recompute()
